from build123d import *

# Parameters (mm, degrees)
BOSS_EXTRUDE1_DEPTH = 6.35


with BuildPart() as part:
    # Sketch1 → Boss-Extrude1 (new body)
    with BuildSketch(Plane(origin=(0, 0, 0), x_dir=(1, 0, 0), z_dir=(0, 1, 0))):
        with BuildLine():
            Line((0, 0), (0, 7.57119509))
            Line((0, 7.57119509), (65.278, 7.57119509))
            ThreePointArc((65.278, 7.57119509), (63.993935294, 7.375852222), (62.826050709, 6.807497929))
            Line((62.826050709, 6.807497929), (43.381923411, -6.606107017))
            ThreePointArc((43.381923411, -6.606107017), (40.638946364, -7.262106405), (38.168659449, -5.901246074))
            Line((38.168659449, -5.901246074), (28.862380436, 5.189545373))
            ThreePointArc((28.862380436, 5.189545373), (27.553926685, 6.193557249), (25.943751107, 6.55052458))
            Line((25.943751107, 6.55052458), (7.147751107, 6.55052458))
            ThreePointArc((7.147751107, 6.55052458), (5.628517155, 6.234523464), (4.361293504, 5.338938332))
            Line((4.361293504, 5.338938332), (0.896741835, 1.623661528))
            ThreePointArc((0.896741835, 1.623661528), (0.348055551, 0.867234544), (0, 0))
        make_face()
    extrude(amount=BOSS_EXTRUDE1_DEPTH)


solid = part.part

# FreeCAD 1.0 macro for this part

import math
import FreeCAD as App
import Part
import Sketcher
Q = App.Units.Quantity

doc = App.newDocument("Part")
body = doc.addObject("PartDesign::Body", "Body")

# Sketch on XZ plane
sketch1 = body.newObject("Sketcher::SketchObject", "Sketch")
sketch1.AttachmentSupport = (doc.getObject("XZ_Plane"), [""])
sketch1.MapMode = "FlatFace"
sketch1.addGeometry(Part.LineSegment(App.Vector(0, -7.6, 0), App.Vector(0, 0, 0)), False)
sketch1.addGeometry(Part.ArcOfCircle(Part.Circle(App.Vector(3.7, 1, 0), App.Vector(0, 0, 1), 3.8), math.radians(-165), math.radians(-137)), False)
sketch1.addGeometry(Part.LineSegment(App.Vector(0.9, -1.6, 0), App.Vector(4.4, -5.3, 0)), False)
sketch1.addGeometry(Part.ArcOfCircle(Part.Circle(App.Vector(7.1, -2.7, 0), App.Vector(0, 0, 1), 3.8), math.radians(-137), math.radians(-90)), False)
sketch1.addGeometry(Part.LineSegment(App.Vector(7.1, -6.6, 0), App.Vector(25.9, -6.6, 0)), False)
sketch1.addGeometry(Part.ArcOfCircle(Part.Circle(App.Vector(25.9, -2.7, 0), App.Vector(0, 0, 1), 3.8), math.radians(-90), math.radians(-40)), False)
sketch1.addGeometry(Part.LineSegment(App.Vector(28.9, -5.2, 0), App.Vector(38.2, 5.9, 0)), False)
sketch1.addGeometry(Part.ArcOfCircle(Part.Circle(App.Vector(41.2, 3.4, 0), App.Vector(0, 0, 1), 3.9), math.radians(55), math.radians(140)), False)
sketch1.addGeometry(Part.LineSegment(App.Vector(43.4, 6.6, 0), App.Vector(62.8, -6.8, 0)), False)
sketch1.addGeometry(Part.ArcOfCircle(Part.Circle(App.Vector(65.3, -3.3, 0), App.Vector(0, 0, 1), 4.3), math.radians(-125), math.radians(-90)), False)
sketch1.addGeometry(Part.LineSegment(App.Vector(65.3, -7.6, 0), App.Vector(0, -7.6, 0)), False)
sketch1.addConstraint(Sketcher.Constraint("Coincident", 0, 2, 1, 1))
sketch1.addConstraint(Sketcher.Constraint("Tangent", 1, 2, 2, 1))
sketch1.addConstraint(Sketcher.Constraint("Tangent", 2, 2, 3, 1))
sketch1.addConstraint(Sketcher.Constraint("Tangent", 3, 2, 4, 1))
sketch1.addConstraint(Sketcher.Constraint("Tangent", 4, 2, 5, 1))
sketch1.addConstraint(Sketcher.Constraint("Tangent", 5, 2, 6, 1))
sketch1.addConstraint(Sketcher.Constraint("Tangent", 6, 2, 7, 2))
sketch1.addConstraint(Sketcher.Constraint("Tangent", 7, 1, 8, 1))
sketch1.addConstraint(Sketcher.Constraint("Tangent", 8, 2, 9, 1))
sketch1.addConstraint(Sketcher.Constraint("Tangent", 9, 2, 10, 1))
sketch1.addConstraint(Sketcher.Constraint("Coincident", 10, 2, 0, 1))
sketch1.addConstraint(Sketcher.Constraint("Vertical", 0))
sketch1.addConstraint(Sketcher.Constraint("Horizontal", 4))
sketch1.addConstraint(Sketcher.Constraint("Horizontal", 10))
sketch1.addConstraint(Sketcher.Constraint("Coincident", 0, 2, -1, 1))
sketch1.addConstraint(Sketcher.Constraint("Equal", 1, 3))
sketch1.addConstraint(Sketcher.Constraint("Equal", 3, 5))
sketch1.addConstraint(Sketcher.Constraint("Radius", 1, Q("0.15 in")))
sketch1.addConstraint(Sketcher.Constraint("Radius", 9, Q("0.17 in")))
sketch1.addConstraint(Sketcher.Constraint("Angle", 2, Q("-47 deg")))
sketch1.addConstraint(Sketcher.Constraint("Angle", 6, Q("50 deg")))
sketch1.addConstraint(Sketcher.Constraint("Distance", 2, Q("0.2 in")))
sketch1.addConstraint(Sketcher.Constraint("DistanceX", 4, 1, 4, 2, Q("0.74 in")))
sketch1.addConstraint(Sketcher.Constraint("DistanceX", 10, 2, 10, 1, Q("2.57 in")))
sketch1.addConstraint(Sketcher.Constraint("Angle", 8, Q("-34.6 deg")))
sketch1.addConstraint(Sketcher.Constraint("Distance", 6, Q("0.57 in")))
sketch1.addConstraint(Sketcher.Constraint("Distance", 8, Q("0.93 in")))
sketch1.addConstraint(Sketcher.Constraint("Radius", 7, 3.908322))
pad1 = body.newObject("PartDesign::Pad", "Pad")
pad1.Profile = sketch1
pad1.Length = Q("0.25 in")
pad1.Reversed = True

doc.recompute()
